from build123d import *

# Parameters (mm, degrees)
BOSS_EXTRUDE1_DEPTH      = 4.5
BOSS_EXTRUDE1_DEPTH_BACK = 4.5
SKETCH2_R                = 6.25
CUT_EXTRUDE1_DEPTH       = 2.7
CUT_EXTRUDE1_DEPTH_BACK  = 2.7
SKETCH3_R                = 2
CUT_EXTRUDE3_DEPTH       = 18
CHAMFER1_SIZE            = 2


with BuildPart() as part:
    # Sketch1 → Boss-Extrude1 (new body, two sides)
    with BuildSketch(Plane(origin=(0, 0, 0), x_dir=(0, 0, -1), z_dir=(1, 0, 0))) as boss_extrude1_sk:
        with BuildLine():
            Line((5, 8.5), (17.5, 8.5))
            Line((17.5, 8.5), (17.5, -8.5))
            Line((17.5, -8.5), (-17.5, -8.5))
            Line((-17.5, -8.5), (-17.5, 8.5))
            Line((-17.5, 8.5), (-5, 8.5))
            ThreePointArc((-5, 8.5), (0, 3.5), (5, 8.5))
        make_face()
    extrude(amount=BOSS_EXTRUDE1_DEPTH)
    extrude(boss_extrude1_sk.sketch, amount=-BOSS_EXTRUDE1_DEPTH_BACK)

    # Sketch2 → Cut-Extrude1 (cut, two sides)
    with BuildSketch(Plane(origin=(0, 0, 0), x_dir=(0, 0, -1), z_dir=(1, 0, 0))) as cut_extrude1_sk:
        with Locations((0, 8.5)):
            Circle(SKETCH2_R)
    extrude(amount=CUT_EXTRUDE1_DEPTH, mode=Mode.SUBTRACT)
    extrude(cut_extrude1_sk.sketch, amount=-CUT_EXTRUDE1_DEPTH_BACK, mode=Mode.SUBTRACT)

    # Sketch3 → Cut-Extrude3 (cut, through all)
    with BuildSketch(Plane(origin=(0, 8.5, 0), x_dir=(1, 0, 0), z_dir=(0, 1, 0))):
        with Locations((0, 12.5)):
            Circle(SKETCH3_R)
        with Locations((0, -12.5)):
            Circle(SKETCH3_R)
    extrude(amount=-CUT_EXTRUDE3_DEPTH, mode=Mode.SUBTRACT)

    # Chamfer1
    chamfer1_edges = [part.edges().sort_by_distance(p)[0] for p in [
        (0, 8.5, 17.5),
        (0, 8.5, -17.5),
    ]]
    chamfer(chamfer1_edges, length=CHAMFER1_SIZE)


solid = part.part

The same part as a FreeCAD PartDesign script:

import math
import FreeCAD as App
import Part
import Sketcher
from FreeCAD import Vector


def edges_at(feature, points):
    """Names of the edges that pass closest to the given points."""
    edges = feature.Shape.Edges
    near = lambda p: min(range(len(edges)), key=lambda i: edges[i].distToShape(Part.Vertex(*p))[0])
    return sorted({f"Edge{near(p) + 1}" for p in points})

doc = App.newDocument("Part")
body = doc.addObject("PartDesign::Body", "Body")

# Sketch on YZ plane
sketch1 = doc.addObject("Sketcher::SketchObject", "Sketch")
body.addObject(sketch1)
sketch1.AttachmentSupport = (doc.YZ_Plane, [""])
sketch1.MapMode = "FlatFace"
sketch1.addGeometry(Part.LineSegment(Vector(8, -18, 0), Vector(8, -5, 0)), False)
sketch1.addGeometry(Part.ArcOfCircle(Part.Circle(Vector(8, 0, 0), Vector(0, 0, 1), 5), math.radians(90), math.radians(270)), False)
sketch1.addGeometry(Part.LineSegment(Vector(8, 5, 0), Vector(8, 18, 0)), False)
sketch1.addGeometry(Part.LineSegment(Vector(8, 18, 0), Vector(-8, 18, 0)), False)
sketch1.addGeometry(Part.LineSegment(Vector(-8, 18, 0), Vector(-8, -18, 0)), False)
sketch1.addGeometry(Part.LineSegment(Vector(-8, -18, 0), Vector(8, -18, 0)), False)
sketch1.addConstraint(Sketcher.Constraint("Coincident", 0, 2, 1, 2))
sketch1.addConstraint(Sketcher.Constraint("Coincident", 1, 1, 2, 1))
sketch1.addConstraint(Sketcher.Constraint("Coincident", 2, 2, 3, 1))
sketch1.addConstraint(Sketcher.Constraint("Coincident", 3, 2, 4, 1))
sketch1.addConstraint(Sketcher.Constraint("Coincident", 4, 2, 5, 1))
sketch1.addConstraint(Sketcher.Constraint("Coincident", 5, 2, 0, 1))
sketch1.addConstraint(Sketcher.Constraint("Vertical", 0))
sketch1.addConstraint(Sketcher.Constraint("Vertical", 2))
sketch1.addConstraint(Sketcher.Constraint("Horizontal", 3))
sketch1.addConstraint(Sketcher.Constraint("Vertical", 4))
sketch1.addConstraint(Sketcher.Constraint("Horizontal", 5))
sketch1.addConstraint(Sketcher.Constraint("Symmetric", 2, 2, 4, 2, -1, 1))
sketch1.addConstraint(Sketcher.Constraint("Symmetric", 0, 2, 1, 1, -1))
sketch1.addConstraint(Sketcher.Constraint("Vertical", 1, 3, 0, 2))
sketch1.addConstraint(Sketcher.Constraint("Radius", 1, 5.0))
sketch1.addConstraint(Sketcher.Constraint("DistanceX", 3, 2, 3, 1, 17.0))
sketch1.addConstraint(Sketcher.Constraint("DistanceY", 4, 2, 4, 1, 35.0))
pad1 = doc.addObject("PartDesign::Pad", "Pad")
body.addObject(pad1)
pad1.Profile = sketch1
pad1.Type = "TwoLengths"
pad1.Length = 4.5
pad1.Length2 = 4.5

# Sketch on YZ plane
sketch2 = doc.addObject("Sketcher::SketchObject", "Sketch001")
body.addObject(sketch2)
sketch2.AttachmentSupport = (doc.YZ_Plane, [""])
sketch2.MapMode = "FlatFace"
sketch2.addGeometry(Part.Circle(Vector(8, 0, 0), Vector(0, 0, 1), 6), False)
sketch2.addConstraint(Sketcher.Constraint("PointOnObject", 0, 3, -1))
sketch2.addConstraint(Sketcher.Constraint("Diameter", 0, 12.5))
sketch2.addConstraint(Sketcher.Constraint("DistanceX", -1, 1, 0, 3, 8.5))
pocket1 = doc.addObject("PartDesign::Pocket", "Pocket")
body.addObject(pocket1)
pocket1.Profile = sketch2
pocket1.Type = "TwoLengths"
pocket1.Length = 2.7
pocket1.Length2 = 2.7
pocket1.Reversed = True

# Sketch on XZ plane
sketch3 = doc.addObject("Sketcher::SketchObject", "Sketch002")
body.addObject(sketch3)
sketch3.AttachmentSupport = (doc.XZ_Plane, [""])
sketch3.MapMode = "FlatFace"
sketch3.AttachmentOffset = App.Placement(Vector(0, 0, -8.5), App.Rotation())
sketch3.addGeometry(Part.Circle(Vector(0, -12.5, 0), Vector(0, 0, 1), 2), False)
sketch3.addGeometry(Part.Circle(Vector(0, 12.5, 0), Vector(0, 0, 1), 2), False)
sketch3.addConstraint(Sketcher.Constraint("Equal", 0, 1))
sketch3.addConstraint(Sketcher.Constraint("Symmetric", 0, 3, 1, 3, -1, 1))
sketch3.addConstraint(Sketcher.Constraint("PointOnObject", 0, 3, -2))
sketch3.addConstraint(Sketcher.Constraint("Diameter", 0, 4.0))
sketch3.addConstraint(Sketcher.Constraint("DistanceY", 0, 3, 1, 3, 25.0))
pocket2 = doc.addObject("PartDesign::Pocket", "Pocket001")
body.addObject(pocket2)
pocket2.Profile = sketch3
pocket2.Type = "ThroughAll"
pocket2.Reversed = True
doc.recompute()

chamfer = doc.addObject("PartDesign::Chamfer", "Chamfer")
body.addObject(chamfer)
chamfer.Base = (pocket2, edges_at(pocket2, [(0, 8.5, 17.5), (0, 8.5, -17.5)]))
chamfer.Size = 2

doc.recompute()
